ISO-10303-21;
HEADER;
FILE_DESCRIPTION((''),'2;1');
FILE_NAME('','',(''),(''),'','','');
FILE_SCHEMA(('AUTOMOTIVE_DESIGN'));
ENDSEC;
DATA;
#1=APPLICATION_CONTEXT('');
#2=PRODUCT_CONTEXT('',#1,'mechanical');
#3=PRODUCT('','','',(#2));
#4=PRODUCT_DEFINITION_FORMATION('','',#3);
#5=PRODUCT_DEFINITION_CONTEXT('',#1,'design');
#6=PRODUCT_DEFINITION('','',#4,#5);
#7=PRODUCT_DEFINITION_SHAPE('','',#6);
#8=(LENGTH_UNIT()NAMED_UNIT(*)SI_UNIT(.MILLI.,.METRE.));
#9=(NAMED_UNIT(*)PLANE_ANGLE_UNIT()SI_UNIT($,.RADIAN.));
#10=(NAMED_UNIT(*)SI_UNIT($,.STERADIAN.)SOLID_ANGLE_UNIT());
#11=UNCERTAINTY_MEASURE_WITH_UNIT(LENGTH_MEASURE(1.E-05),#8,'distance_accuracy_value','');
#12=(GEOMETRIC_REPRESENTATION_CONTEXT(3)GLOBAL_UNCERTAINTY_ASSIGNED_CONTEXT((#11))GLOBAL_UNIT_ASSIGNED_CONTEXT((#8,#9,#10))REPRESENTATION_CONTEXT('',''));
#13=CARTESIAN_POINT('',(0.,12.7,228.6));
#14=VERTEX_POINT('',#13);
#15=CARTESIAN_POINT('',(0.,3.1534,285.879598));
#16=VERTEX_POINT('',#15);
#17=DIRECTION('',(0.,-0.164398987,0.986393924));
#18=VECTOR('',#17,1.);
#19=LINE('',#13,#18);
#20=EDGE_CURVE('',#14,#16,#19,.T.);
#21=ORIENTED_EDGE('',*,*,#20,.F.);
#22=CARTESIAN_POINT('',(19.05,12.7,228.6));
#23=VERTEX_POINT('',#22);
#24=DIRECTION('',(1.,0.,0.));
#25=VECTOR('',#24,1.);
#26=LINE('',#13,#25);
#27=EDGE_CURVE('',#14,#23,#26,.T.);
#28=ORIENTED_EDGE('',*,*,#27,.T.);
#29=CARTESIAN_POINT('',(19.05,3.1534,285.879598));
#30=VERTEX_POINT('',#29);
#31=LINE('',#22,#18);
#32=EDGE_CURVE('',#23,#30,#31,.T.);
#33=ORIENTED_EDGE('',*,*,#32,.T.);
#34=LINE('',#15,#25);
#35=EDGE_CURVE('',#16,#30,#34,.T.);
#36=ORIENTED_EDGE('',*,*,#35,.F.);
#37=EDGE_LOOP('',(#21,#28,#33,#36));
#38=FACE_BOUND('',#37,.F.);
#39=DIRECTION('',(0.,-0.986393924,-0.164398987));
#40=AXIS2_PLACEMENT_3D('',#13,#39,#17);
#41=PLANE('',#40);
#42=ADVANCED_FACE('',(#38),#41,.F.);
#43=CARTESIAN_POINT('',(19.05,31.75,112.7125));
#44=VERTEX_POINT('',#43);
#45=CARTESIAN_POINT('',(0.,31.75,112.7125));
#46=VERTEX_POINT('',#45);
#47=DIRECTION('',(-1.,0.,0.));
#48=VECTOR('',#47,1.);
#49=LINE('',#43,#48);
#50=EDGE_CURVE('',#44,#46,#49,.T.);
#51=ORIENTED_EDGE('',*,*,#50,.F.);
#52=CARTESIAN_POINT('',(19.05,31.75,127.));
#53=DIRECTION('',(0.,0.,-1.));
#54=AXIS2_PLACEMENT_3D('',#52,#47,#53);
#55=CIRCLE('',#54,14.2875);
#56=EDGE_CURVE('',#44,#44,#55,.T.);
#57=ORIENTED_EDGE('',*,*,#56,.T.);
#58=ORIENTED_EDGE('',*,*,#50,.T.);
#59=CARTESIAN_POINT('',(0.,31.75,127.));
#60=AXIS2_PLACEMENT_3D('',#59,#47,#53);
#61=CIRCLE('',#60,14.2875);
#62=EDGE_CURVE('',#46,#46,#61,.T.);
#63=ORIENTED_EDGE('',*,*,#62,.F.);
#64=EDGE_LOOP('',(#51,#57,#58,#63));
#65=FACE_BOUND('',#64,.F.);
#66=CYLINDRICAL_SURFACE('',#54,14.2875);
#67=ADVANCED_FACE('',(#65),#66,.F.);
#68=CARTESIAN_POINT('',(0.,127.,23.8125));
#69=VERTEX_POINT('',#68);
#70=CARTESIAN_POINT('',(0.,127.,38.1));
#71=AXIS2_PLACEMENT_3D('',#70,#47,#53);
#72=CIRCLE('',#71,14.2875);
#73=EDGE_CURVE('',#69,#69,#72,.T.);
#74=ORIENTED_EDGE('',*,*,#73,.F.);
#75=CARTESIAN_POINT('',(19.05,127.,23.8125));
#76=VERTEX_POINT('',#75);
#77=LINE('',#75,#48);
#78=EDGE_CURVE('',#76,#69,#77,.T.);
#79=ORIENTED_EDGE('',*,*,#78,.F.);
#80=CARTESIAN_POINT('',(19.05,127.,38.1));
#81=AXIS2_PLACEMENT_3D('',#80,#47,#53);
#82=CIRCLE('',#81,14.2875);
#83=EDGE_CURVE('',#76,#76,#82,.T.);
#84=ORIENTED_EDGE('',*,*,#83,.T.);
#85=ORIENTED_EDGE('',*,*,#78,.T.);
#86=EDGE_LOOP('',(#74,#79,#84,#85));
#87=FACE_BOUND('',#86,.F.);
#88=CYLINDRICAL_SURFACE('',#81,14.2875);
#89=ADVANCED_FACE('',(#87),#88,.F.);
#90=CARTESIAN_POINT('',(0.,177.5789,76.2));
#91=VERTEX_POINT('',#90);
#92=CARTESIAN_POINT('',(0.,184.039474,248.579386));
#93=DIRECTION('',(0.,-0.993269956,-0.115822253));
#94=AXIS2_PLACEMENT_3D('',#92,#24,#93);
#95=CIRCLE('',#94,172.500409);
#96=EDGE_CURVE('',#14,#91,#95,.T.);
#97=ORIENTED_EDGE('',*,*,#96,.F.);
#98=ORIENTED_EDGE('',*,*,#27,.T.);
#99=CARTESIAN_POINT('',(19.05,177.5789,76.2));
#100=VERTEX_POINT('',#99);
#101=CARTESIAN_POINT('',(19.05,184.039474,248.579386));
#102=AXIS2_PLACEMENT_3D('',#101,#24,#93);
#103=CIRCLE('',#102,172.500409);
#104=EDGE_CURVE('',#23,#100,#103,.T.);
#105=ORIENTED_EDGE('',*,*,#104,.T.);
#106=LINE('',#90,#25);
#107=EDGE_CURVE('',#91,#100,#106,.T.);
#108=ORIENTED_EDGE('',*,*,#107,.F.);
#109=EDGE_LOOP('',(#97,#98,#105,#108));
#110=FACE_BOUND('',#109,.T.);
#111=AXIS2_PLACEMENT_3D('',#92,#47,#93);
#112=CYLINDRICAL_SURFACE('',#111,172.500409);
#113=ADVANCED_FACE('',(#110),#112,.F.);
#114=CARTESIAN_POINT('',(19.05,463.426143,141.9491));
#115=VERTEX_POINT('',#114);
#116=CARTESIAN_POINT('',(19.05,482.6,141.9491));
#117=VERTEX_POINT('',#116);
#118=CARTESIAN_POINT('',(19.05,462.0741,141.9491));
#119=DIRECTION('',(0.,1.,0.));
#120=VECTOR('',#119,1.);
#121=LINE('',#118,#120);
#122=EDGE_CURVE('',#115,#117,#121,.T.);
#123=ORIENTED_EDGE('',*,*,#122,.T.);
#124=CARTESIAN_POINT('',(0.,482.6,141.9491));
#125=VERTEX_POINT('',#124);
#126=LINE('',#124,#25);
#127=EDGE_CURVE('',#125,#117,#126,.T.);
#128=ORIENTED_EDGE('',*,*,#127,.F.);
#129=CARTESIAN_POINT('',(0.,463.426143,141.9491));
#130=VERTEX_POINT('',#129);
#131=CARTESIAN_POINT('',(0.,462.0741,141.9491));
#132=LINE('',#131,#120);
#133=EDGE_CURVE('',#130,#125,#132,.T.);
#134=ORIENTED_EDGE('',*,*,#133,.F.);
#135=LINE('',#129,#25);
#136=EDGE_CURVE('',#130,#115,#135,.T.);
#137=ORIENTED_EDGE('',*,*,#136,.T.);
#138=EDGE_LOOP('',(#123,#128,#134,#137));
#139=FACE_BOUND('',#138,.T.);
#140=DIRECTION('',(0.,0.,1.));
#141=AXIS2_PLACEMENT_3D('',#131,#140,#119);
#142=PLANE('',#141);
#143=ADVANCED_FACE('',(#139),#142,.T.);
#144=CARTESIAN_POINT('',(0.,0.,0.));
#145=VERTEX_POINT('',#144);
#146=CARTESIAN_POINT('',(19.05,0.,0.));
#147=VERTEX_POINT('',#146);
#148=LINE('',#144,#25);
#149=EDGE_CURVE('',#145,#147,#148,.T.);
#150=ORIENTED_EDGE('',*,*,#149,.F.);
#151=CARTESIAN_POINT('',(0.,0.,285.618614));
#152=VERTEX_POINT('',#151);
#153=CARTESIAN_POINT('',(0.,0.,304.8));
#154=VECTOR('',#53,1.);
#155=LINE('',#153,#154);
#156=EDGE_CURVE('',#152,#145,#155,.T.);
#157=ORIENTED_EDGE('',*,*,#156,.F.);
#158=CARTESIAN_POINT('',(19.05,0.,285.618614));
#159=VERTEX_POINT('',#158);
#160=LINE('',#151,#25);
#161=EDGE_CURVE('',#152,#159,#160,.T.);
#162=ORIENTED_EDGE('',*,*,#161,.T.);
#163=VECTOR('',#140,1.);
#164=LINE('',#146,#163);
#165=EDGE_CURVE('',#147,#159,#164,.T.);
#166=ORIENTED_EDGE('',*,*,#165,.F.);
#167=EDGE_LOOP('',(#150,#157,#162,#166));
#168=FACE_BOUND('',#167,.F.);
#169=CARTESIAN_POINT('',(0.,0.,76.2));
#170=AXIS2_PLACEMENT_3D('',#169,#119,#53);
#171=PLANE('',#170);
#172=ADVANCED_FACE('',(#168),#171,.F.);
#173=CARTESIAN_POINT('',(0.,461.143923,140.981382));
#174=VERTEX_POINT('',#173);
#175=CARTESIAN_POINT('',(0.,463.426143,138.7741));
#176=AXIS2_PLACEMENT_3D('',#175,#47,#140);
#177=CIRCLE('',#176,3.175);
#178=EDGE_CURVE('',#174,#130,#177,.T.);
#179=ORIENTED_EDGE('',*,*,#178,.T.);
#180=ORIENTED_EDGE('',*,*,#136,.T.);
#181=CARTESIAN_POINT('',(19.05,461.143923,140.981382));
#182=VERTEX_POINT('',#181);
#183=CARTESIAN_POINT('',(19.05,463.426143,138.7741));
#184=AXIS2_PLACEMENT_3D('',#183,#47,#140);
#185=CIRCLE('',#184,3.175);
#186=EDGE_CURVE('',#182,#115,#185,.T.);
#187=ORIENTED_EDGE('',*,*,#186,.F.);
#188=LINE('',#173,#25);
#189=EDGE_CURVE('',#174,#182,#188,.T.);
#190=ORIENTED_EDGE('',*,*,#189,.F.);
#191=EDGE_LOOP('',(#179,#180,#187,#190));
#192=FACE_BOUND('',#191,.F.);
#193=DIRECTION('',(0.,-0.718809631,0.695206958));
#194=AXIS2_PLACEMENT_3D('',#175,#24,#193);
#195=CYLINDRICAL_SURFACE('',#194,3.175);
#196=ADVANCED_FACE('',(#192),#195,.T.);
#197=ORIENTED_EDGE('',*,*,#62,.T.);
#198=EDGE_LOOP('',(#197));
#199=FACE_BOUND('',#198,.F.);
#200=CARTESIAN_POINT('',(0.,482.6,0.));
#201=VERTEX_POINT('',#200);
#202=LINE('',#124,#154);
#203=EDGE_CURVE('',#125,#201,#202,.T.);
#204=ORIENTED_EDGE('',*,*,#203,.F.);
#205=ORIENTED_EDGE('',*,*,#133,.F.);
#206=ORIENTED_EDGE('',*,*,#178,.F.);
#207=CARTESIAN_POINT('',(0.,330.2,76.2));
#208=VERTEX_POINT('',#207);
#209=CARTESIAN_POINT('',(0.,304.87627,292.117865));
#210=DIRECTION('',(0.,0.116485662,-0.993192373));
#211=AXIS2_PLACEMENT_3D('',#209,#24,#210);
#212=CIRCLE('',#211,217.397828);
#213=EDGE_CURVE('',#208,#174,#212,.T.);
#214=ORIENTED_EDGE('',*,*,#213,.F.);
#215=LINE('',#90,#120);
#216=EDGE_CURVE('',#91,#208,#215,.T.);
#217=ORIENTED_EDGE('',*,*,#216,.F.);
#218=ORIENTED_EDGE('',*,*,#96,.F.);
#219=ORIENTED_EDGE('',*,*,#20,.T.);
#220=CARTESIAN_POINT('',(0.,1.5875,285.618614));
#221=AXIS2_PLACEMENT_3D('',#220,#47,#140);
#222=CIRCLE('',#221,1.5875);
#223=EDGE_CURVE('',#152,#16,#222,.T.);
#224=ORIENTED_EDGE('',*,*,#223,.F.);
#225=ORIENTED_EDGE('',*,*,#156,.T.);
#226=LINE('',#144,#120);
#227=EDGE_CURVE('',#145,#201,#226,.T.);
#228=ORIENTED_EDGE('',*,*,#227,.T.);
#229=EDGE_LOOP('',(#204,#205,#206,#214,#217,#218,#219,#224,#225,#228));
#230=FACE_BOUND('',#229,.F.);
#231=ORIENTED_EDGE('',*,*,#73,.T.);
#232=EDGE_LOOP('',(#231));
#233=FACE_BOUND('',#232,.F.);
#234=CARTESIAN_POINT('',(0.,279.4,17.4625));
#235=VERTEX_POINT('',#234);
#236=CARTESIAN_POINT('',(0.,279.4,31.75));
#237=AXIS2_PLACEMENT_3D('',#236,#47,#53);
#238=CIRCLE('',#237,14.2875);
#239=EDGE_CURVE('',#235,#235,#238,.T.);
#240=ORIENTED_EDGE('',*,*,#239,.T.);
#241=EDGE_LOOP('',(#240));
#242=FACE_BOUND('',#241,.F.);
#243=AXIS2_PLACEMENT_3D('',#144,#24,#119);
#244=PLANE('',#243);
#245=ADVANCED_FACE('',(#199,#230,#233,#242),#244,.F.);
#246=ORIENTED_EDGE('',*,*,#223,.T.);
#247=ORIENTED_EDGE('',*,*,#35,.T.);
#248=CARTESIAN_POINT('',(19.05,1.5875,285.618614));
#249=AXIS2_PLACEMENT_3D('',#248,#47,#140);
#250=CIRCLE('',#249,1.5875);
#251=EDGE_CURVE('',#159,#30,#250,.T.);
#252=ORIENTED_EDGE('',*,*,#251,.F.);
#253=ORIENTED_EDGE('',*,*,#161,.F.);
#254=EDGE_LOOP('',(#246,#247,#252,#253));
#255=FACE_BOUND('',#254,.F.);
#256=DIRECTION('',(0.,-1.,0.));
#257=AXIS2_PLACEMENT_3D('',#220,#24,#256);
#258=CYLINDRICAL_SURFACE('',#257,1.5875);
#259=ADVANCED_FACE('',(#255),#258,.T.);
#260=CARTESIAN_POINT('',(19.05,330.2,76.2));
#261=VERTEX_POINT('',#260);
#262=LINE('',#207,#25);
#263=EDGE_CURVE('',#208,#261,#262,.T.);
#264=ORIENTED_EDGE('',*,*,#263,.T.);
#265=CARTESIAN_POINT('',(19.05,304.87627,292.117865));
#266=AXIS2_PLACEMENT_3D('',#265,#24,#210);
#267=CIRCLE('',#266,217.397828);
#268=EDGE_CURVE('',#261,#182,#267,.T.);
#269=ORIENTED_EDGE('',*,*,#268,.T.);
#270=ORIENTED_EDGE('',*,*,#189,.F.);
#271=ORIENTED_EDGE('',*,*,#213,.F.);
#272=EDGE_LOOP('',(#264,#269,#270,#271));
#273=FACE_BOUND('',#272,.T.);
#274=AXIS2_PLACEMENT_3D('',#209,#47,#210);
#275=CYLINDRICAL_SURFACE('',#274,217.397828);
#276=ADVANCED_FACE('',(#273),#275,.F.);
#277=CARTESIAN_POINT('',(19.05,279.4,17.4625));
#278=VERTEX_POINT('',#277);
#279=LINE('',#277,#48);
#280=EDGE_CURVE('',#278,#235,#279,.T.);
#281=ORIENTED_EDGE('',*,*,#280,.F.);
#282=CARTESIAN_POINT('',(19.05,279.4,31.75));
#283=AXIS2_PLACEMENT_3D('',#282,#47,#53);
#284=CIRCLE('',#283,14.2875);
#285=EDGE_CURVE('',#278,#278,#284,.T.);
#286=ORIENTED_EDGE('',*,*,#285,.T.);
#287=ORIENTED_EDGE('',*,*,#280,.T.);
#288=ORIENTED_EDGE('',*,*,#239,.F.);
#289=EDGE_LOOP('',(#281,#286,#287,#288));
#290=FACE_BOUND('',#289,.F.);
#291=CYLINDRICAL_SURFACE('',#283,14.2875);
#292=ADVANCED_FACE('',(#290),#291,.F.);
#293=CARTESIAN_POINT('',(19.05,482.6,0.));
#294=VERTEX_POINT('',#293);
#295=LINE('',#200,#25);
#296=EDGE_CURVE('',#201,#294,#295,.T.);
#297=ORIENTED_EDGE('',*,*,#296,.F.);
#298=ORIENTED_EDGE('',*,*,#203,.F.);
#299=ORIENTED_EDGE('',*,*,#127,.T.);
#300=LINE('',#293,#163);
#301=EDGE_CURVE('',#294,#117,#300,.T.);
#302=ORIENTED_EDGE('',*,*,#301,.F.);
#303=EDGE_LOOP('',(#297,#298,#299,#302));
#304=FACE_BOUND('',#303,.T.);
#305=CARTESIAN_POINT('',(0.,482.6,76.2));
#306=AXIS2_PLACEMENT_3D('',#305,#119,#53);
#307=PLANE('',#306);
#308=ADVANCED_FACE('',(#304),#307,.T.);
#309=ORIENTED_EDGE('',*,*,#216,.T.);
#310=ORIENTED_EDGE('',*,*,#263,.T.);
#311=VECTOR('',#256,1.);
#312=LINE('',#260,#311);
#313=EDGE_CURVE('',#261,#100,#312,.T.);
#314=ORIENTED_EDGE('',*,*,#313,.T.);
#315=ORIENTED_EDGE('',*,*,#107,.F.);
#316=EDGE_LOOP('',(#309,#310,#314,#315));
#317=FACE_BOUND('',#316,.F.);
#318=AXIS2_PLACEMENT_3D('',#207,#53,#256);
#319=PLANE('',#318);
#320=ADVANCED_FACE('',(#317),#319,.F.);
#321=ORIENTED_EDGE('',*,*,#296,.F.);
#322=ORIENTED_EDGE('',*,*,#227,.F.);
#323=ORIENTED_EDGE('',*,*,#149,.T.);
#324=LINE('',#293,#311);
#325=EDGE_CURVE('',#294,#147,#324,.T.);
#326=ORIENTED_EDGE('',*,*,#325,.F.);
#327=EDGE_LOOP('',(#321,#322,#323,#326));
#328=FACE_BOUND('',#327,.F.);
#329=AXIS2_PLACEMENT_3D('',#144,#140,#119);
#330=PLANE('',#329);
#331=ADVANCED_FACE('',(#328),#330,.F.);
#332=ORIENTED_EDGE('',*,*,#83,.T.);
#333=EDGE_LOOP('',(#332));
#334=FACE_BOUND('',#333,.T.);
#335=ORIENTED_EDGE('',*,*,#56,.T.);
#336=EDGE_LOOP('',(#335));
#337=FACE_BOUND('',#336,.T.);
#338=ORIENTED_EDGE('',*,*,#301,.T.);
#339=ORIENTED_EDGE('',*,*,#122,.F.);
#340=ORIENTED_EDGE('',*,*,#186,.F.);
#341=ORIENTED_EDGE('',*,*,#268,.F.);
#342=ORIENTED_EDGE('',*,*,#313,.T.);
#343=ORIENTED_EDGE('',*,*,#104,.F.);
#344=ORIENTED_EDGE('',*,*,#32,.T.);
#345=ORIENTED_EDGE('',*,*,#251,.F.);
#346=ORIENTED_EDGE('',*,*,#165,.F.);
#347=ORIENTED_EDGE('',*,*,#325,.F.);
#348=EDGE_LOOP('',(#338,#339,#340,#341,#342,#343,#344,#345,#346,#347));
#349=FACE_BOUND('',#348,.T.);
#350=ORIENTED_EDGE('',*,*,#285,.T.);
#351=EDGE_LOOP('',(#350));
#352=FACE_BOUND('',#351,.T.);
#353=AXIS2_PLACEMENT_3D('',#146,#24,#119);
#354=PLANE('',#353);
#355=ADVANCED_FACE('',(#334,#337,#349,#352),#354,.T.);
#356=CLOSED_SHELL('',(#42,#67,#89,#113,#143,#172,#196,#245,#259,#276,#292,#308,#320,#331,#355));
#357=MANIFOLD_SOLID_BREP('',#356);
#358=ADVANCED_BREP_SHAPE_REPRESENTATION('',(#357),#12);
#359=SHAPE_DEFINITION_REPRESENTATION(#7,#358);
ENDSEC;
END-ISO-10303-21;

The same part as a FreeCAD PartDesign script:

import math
import FreeCAD as App
import Part
import Sketcher
from FreeCAD import Vector
Q = App.Units.Quantity


def edges_at(feature, points):
    """Names of the edges that pass closest to the given points."""
    edges = feature.Shape.Edges
    near = lambda p: min(range(len(edges)), key=lambda i: edges[i].distToShape(Part.Vertex(*p))[0])
    return sorted({f"Edge{near(p) + 1}" for p in points})

doc = App.newDocument("Part")
body = doc.addObject("PartDesign::Body", "Body")

sketch1 = doc.addObject("Sketcher::SketchObject", "Sketch")
body.addObject(sketch1)
sketch1.AttachmentSupport = (doc.YZ_Plane, [""])
sketch1.MapMode = "FlatFace"
sketch1.addGeometry([
    Part.LineSegment(Vector(0, 0, 0), Vector(483, 0, 0)),
    Part.LineSegment(Vector(483, 0, 0), Vector(483, 142, 0)),
    Part.LineSegment(Vector(483, 142, 0), Vector(462, 142, 0)),
    Part.ArcOfCircle(Part.Circle(Vector(305, 292, 0), Vector(0, 0, 1), 217), math.radians(-83), math.radians(-44)),
    Part.LineSegment(Vector(330, 76, 0), Vector(178, 76, 0)),
    Part.ArcOfCircle(Part.Circle(Vector(184, 249, 0), Vector(0, 0, 1), 173), math.radians(-173), math.radians(-92)),
    Part.LineSegment(Vector(13, 229, 0), Vector(0, 305, 0)),
    Part.LineSegment(Vector(0, 305, 0), Vector(0, 0, 0)),
], False)
sketch1.addConstraint([
    Sketcher.Constraint("Coincident", 0, 2, 1, 1),
    Sketcher.Constraint("Coincident", 1, 2, 2, 1),
    Sketcher.Constraint("Coincident", 2, 2, 3, 2),
    Sketcher.Constraint("Coincident", 3, 1, 4, 1),
    Sketcher.Constraint("Coincident", 4, 2, 5, 2),
    Sketcher.Constraint("Coincident", 5, 1, 6, 1),
    Sketcher.Constraint("Coincident", 6, 2, 7, 1),
    Sketcher.Constraint("Coincident", 7, 2, 0, 1),
    Sketcher.Constraint("Horizontal", 0),
    Sketcher.Constraint("Vertical", 1),
    Sketcher.Constraint("Horizontal", 2),
    Sketcher.Constraint("Horizontal", 4),
    Sketcher.Constraint("Vertical", 7),
    Sketcher.Constraint("Coincident", 7, 2, -1, 1),
    Sketcher.Constraint("DistanceX", 0, 1, 0, 2, Q("19 in")),
    Sketcher.Constraint("DistanceY", 7, 2, 7, 1, Q("12 in")),
    Sketcher.Constraint("DistanceX", -1, 1, 3, 1, Q("13 in")),
    Sketcher.Constraint("DistanceY", -1, 1, 3, 1, Q("3 in")),
    Sketcher.Constraint("DistanceY", -1, 1, 5, 1, Q("9 in")),
    Sketcher.Constraint("DistanceX", -1, 1, 5, 1, Q("0.5 in")),
    Sketcher.Constraint("Radius", 3, Q("217.398 mm")),
    Sketcher.Constraint("Radius", 5, Q("172.5004 mm")),
    Sketcher.Constraint("DistanceX", 2, 2, 2, 1, Q("0.8081 in")),
    Sketcher.Constraint("DistanceX", 4, 2, 4, 1, Q("6.0087 in")),
    Sketcher.Constraint("DistanceX", -1, 1, 3, 3, Q("12.003 in")),
])
pad1 = doc.addObject("PartDesign::Pad", "Pad")
body.addObject(pad1)
pad1.Profile = sketch1
pad1.Length = Q("0.75 in")
doc.recompute()

fillet = doc.addObject("PartDesign::Fillet", "Fillet")
body.addObject(fillet)
fillet.Base = (pad1, edges_at(pad1, [(9.525, 0, 304.8)]))
fillet.Radius = Q("0.0625 in")
doc.recompute()

fillet2 = doc.addObject("PartDesign::Fillet", "Fillet001")
body.addObject(fillet2)
fillet2.Base = (fillet, edges_at(fillet, [(9.525, 462.074, 141.949)]))
fillet2.Radius = Q("0.125 in")

sketch2 = doc.addObject("Sketcher::SketchObject", "Sketch001")
body.addObject(sketch2)
sketch2.AttachmentSupport = (doc.YZ_Plane, [""])
sketch2.MapMode = "FlatFace"
sketch2.AttachmentOffset = App.Placement(Vector(0, 0, 0.75 * 25.4), App.Rotation())
sketch2.addGeometry([
    Part.Circle(Vector(32, 127, 0), Vector(0, 0, 1), 14),
    Part.Circle(Vector(127, 38, 0), Vector(0, 0, 1), 14),
    Part.Circle(Vector(279, 32, 0), Vector(0, 0, 1), 14),
], False)
sketch2.addConstraint([
    Sketcher.Constraint("Equal", 0, 1),
    Sketcher.Constraint("Equal", 1, 2),
    Sketcher.Constraint("Diameter", 0, Q("1.125 in")),
    Sketcher.Constraint("DistanceY", -1, 1, 0, 3, Q("5 in")),
    Sketcher.Constraint("DistanceX", -1, 1, 1, 3, Q("5 in")),
    Sketcher.Constraint("DistanceX", -1, 1, 2, 3, Q("11 in")),
    Sketcher.Constraint("DistanceY", -1, 1, 1, 3, Q("1.5 in")),
    Sketcher.Constraint("DistanceX", -1, 1, 0, 3, Q("1.25 in")),
    Sketcher.Constraint("DistanceY", -1, 1, 2, 3, Q("1.25 in")),
])
doc.recompute()
hole = doc.addObject("PartDesign::Hole", "Hole")
body.addObject(hole)
hole.Profile = sketch2
hole.ThreadType = "None"
hole.Diameter = Q("1.125 in")
hole.DepthType = "ThroughAll"

doc.recompute()
